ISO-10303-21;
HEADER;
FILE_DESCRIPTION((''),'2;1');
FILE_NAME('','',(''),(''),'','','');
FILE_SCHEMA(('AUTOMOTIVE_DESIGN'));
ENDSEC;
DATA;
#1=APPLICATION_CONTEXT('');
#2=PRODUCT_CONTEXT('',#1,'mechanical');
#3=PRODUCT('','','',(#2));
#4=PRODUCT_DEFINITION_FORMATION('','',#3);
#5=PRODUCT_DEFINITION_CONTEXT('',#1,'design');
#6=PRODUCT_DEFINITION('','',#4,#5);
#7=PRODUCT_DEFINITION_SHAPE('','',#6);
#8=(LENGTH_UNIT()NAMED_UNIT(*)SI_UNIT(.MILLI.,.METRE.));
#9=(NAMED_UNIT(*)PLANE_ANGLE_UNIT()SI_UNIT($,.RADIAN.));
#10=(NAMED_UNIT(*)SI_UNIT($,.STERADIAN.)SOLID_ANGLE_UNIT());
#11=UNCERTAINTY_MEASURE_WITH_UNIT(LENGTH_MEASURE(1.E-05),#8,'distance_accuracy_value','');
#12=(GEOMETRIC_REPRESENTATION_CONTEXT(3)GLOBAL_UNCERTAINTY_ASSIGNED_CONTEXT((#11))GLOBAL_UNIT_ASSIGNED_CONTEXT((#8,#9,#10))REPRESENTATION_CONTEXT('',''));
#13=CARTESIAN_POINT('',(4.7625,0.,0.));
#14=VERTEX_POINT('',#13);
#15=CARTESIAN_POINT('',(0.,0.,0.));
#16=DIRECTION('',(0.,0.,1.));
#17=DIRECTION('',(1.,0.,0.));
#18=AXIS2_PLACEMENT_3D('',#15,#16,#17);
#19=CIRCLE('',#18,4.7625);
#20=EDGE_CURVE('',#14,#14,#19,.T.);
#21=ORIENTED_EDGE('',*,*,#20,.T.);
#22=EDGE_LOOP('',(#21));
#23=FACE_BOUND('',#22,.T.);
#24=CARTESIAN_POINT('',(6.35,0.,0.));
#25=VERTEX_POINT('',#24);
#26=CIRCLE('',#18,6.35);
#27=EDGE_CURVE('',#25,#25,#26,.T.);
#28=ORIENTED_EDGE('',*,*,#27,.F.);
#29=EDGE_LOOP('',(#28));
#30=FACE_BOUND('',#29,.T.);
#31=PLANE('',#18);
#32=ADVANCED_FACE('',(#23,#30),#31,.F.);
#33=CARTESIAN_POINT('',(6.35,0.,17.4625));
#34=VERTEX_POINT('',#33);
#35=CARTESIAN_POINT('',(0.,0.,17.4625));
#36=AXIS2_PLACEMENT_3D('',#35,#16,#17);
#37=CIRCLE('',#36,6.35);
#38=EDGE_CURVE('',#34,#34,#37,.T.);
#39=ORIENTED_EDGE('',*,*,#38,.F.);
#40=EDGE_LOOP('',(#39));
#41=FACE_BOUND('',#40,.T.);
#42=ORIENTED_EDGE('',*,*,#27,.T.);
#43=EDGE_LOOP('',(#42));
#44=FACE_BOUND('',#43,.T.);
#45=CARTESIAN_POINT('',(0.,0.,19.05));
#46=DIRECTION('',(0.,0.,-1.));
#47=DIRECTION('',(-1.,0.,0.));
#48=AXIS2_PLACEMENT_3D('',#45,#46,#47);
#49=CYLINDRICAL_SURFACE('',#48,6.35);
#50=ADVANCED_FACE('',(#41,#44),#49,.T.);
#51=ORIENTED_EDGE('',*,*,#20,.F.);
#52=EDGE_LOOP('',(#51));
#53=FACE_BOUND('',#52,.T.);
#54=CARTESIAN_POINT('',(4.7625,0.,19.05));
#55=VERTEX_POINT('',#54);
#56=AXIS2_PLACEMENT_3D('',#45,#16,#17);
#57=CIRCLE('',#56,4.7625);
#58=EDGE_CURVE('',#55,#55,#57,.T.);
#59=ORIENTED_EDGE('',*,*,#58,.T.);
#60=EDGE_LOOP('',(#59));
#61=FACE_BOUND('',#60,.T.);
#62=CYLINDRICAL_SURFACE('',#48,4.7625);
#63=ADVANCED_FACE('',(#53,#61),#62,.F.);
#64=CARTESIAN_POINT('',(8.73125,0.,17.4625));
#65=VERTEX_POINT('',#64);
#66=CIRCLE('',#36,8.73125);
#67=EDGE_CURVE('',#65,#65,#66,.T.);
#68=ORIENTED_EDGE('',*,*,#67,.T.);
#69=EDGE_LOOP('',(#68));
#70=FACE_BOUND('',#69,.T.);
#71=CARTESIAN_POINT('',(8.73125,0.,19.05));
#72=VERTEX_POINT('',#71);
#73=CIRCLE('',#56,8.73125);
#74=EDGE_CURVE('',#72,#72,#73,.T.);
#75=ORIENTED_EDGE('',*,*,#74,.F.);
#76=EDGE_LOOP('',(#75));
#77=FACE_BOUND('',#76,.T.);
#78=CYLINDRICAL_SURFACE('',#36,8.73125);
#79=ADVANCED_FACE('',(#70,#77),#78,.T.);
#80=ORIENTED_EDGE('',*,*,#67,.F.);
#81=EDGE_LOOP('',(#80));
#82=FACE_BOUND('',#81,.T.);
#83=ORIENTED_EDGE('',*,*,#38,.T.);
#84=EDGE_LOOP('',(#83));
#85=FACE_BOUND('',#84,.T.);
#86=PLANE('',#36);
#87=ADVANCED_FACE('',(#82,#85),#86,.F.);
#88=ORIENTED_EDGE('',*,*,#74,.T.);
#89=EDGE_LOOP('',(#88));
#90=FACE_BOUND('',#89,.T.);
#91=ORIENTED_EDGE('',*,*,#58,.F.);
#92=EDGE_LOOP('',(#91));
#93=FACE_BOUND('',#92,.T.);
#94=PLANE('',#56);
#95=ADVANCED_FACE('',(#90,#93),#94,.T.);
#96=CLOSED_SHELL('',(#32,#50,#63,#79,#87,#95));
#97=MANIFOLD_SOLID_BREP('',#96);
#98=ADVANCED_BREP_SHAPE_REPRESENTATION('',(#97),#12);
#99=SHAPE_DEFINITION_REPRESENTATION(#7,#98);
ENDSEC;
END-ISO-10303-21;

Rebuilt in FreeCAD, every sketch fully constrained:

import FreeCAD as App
import Part
import Sketcher
Q = App.Units.Quantity

doc = App.newDocument("Part")
params = doc.addObject("Spreadsheet::Sheet", "Params")
for row, (alias, value) in enumerate([
    ("sketch1_diameter", "0.5 in"),
    ("sketch1_diameter2", "0.375 in"),
    ("pad1_length", "0.75 in"),
    ("sketch2_diameter", "0.6875 in"),
    ("sketch2_diameter2", "0.375 in"),
    ("pad2_length", "0.0625 in"),
], start=1):
    params.set(f"A{row}", alias)
    params.set(f"B{row}", "=" + value)
    params.setAlias(f"B{row}", alias)

body = doc.addObject("PartDesign::Body", "Body")

# Sketch on XY plane
sketch1 = body.newObject("Sketcher::SketchObject", "Sketch")
sketch1.AttachmentSupport = (doc.getObject("XY_Plane"), [""])
sketch1.MapMode = "FlatFace"
sketch1.addGeometry(Part.Circle(App.Vector(0, 0, 0), App.Vector(0, 0, 1), 6.35), False)
sketch1.addGeometry(Part.Circle(App.Vector(0, 0, 0), App.Vector(0, 0, 1), 4.7625), False)
sketch1.addConstraint(Sketcher.Constraint("Coincident", 0, 3, -1, 1))
sketch1.addConstraint(Sketcher.Constraint("Coincident", 1, 3, -1, 1))
sketch1.addConstraint(Sketcher.Constraint("Diameter", 0, Q("0.5 in")))
sketch1.addConstraint(Sketcher.Constraint("Diameter", 1, Q("0.375 in")))
sketch1.setExpression("Constraints[2]", "Params.sketch1_diameter")
sketch1.setExpression("Constraints[3]", "Params.sketch1_diameter2")
pad1 = body.newObject("PartDesign::Pad", "Pad")
pad1.Profile = sketch1
pad1.setExpression("Length", "Params.pad1_length")

# Sketch on XY plane
sketch2 = body.newObject("Sketcher::SketchObject", "Sketch001")
sketch2.AttachmentSupport = (doc.getObject("XY_Plane"), [""])
sketch2.MapMode = "FlatFace"
sketch2.AttachmentOffset = App.Placement(App.Vector(0, 0, 0.75 * 25.4), App.Rotation())
sketch2.addGeometry(Part.Circle(App.Vector(0, 0, 0), App.Vector(0, 0, 1), 8.73125), False)
sketch2.addGeometry(Part.Circle(App.Vector(0, 0, 0), App.Vector(0, 0, 1), 4.7625), False)
sketch2.addConstraint(Sketcher.Constraint("Coincident", 0, 3, -1, 1))
sketch2.addConstraint(Sketcher.Constraint("Coincident", 1, 3, -1, 1))
sketch2.addConstraint(Sketcher.Constraint("Diameter", 0, Q("0.6875 in")))
sketch2.addConstraint(Sketcher.Constraint("Diameter", 1, Q("0.375 in")))
sketch2.setExpression("Constraints[2]", "Params.sketch2_diameter")
sketch2.setExpression("Constraints[3]", "Params.sketch2_diameter2")
pad2 = body.newObject("PartDesign::Pad", "Pad001")
pad2.Profile = sketch2
pad2.setExpression("Length", "Params.pad2_length")
pad2.Reversed = True

doc.recompute()
